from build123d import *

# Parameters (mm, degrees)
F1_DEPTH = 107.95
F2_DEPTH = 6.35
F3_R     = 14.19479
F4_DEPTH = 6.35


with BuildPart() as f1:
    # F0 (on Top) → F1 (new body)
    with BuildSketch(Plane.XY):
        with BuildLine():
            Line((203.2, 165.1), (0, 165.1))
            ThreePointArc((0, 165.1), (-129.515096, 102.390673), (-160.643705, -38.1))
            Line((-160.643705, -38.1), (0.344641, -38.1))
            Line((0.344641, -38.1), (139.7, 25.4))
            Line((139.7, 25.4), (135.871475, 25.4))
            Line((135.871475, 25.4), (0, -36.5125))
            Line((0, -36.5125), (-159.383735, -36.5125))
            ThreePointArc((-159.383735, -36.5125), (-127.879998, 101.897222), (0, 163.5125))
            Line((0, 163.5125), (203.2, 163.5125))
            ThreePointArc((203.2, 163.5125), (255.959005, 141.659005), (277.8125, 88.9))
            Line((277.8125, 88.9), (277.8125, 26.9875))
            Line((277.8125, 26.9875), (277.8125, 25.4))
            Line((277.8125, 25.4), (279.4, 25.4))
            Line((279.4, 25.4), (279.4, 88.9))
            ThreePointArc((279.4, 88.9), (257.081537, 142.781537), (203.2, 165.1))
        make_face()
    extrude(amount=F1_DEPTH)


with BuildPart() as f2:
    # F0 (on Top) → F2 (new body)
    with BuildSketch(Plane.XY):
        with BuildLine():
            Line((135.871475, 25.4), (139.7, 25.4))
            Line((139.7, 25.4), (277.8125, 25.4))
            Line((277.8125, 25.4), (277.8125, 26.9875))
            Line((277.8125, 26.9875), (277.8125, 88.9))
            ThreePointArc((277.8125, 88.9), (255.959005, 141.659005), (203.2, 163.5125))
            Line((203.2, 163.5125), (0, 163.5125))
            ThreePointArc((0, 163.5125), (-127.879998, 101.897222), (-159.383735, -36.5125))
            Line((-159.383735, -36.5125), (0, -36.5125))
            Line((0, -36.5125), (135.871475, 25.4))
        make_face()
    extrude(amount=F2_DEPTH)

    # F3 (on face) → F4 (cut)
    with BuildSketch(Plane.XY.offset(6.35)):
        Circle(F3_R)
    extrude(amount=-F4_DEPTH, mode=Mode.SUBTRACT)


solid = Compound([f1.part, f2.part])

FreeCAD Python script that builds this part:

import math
import FreeCAD as App
import Part
import Sketcher
Q = App.Units.Quantity

doc = App.newDocument("Part")
body = doc.addObject("PartDesign::Body", "Body")

sketch1 = body.newObject("Sketcher::SketchObject", "Sketch")
sketch1.AttachmentSupport = (doc.getObject("XY_Plane"), [""])
sketch1.MapMode = "FlatFace"
sketch1.addGeometry(Part.LineSegment(App.Vector(203.2, 165.1, 0), App.Vector(0, 165.1, 0)), False)
sketch1.addGeometry(Part.ArcOfCircle(Part.Circle(App.Vector(0, 0, 0), App.Vector(0, 0, 1), 165.1), math.radians(90), math.radians(193)), False)
sketch1.addGeometry(Part.LineSegment(App.Vector(-160.6, -38.1, 0), App.Vector(0.3, -38.1, 0)), False)
sketch1.addGeometry(Part.LineSegment(App.Vector(0.3, -38.1, 0), App.Vector(139.7, 25.4, 0)), False)
sketch1.addGeometry(Part.LineSegment(App.Vector(139.7, 25.4, 0), App.Vector(135.9, 25.4, 0)), False)
sketch1.addGeometry(Part.LineSegment(App.Vector(135.9, 25.4, 0), App.Vector(0, -36.5, 0)), False)
sketch1.addGeometry(Part.LineSegment(App.Vector(0, -36.5, 0), App.Vector(-159.4, -36.5, 0)), False)
sketch1.addGeometry(Part.ArcOfCircle(Part.Circle(App.Vector(0, 0, 0), App.Vector(0, 0, 1), 163.5), math.radians(90), math.radians(193)), False)
sketch1.addGeometry(Part.LineSegment(App.Vector(0, 163.5, 0), App.Vector(203.2, 163.5, 0)), False)
sketch1.addGeometry(Part.ArcOfCircle(Part.Circle(App.Vector(203.2, 88.9, 0), App.Vector(0, 0, 1), 74.6), math.radians(0), math.radians(90)), False)
sketch1.addGeometry(Part.LineSegment(App.Vector(277.8, 88.9, 0), App.Vector(277.8, 25.4, 0)), False)
sketch1.addGeometry(Part.LineSegment(App.Vector(277.8, 25.4, 0), App.Vector(279.4, 25.4, 0)), False)
sketch1.addGeometry(Part.LineSegment(App.Vector(279.4, 25.4, 0), App.Vector(279.4, 88.9, 0)), False)
sketch1.addGeometry(Part.ArcOfCircle(Part.Circle(App.Vector(203.2, 88.9, 0), App.Vector(0, 0, 1), 76.2), math.radians(0), math.radians(90)), False)
sketch1.addConstraint(Sketcher.Constraint("Tangent", 0, 2, 1, 1))
sketch1.addConstraint(Sketcher.Constraint("Coincident", 1, 2, 2, 1))
sketch1.addConstraint(Sketcher.Constraint("Coincident", 2, 2, 3, 1))
sketch1.addConstraint(Sketcher.Constraint("Coincident", 3, 2, 4, 1))
sketch1.addConstraint(Sketcher.Constraint("Coincident", 4, 2, 5, 1))
sketch1.addConstraint(Sketcher.Constraint("Coincident", 5, 2, 6, 1))
sketch1.addConstraint(Sketcher.Constraint("Coincident", 6, 2, 7, 2))
sketch1.addConstraint(Sketcher.Constraint("Tangent", 7, 1, 8, 1))
sketch1.addConstraint(Sketcher.Constraint("Tangent", 8, 2, 9, 2))
sketch1.addConstraint(Sketcher.Constraint("Tangent", 9, 1, 10, 1))
sketch1.addConstraint(Sketcher.Constraint("Coincident", 10, 2, 11, 1))
sketch1.addConstraint(Sketcher.Constraint("Coincident", 11, 2, 12, 1))
sketch1.addConstraint(Sketcher.Constraint("Tangent", 12, 2, 13, 1))
sketch1.addConstraint(Sketcher.Constraint("Tangent", 13, 2, 0, 1))
sketch1.addConstraint(Sketcher.Constraint("Horizontal", 0))
sketch1.addConstraint(Sketcher.Constraint("Horizontal", 2))
sketch1.addConstraint(Sketcher.Constraint("Horizontal", 4))
sketch1.addConstraint(Sketcher.Constraint("Horizontal", 6))
sketch1.addConstraint(Sketcher.Constraint("Horizontal", 8))
sketch1.addConstraint(Sketcher.Constraint("Vertical", 10))
sketch1.addConstraint(Sketcher.Constraint("Horizontal", 11))
sketch1.addConstraint(Sketcher.Constraint("Vertical", 12))
sketch1.addConstraint(Sketcher.Constraint("Coincident", 1, 3, -1, 1))
sketch1.addConstraint(Sketcher.Constraint("Coincident", 7, 3, -1, 1))
sketch1.addConstraint(Sketcher.Constraint("Coincident", 13, 3, 9, 3))
sketch1.addConstraint(Sketcher.Constraint("PointOnObject", 5, 2, -2))
sketch1.addConstraint(Sketcher.Constraint("Parallel", 3, 5))
sketch1.addConstraint(Sketcher.Constraint("Horizontal", 4, 2, 10, 2))
sketch1.addConstraint(Sketcher.Constraint("Radius", 13, Q("3 in")))
sketch1.addConstraint(Sketcher.Constraint("Radius", 1, Q("6.5 in")))
sketch1.addConstraint(Sketcher.Constraint("DistanceX", 0, 2, 0, 1, Q("8 in")))
sketch1.addConstraint(Sketcher.Constraint("DistanceY", 10, 2, 10, 1, Q("2.5 in")))
sketch1.addConstraint(Sketcher.Constraint("Radius", 7, Q("6.4375 in")))
sketch1.addConstraint(Sketcher.Constraint("DistanceY", 1, 2, 0, 2, Q("8 in")))
sketch1.addConstraint(Sketcher.Constraint("DistanceX", -1, 1, 3, 2, Q("5.5 in")))
sketch1.addConstraint(Sketcher.Constraint("DistanceY", 5, 2, -1, 1, Q("1.4375 in")))
sketch1.addConstraint(Sketcher.Constraint("Distance", 3, 153.141001))
pad1 = body.newObject("PartDesign::Pad", "Pad")
pad1.Profile = sketch1
pad1.Length = Q("4.25 in")
body2 = doc.addObject("PartDesign::Body", "Body001")

sketch2 = body2.newObject("Sketcher::SketchObject", "Sketch001")
sketch2.AttachmentSupport = (doc.getObject("XY_Plane001"), [""])
sketch2.MapMode = "FlatFace"
sketch2.addGeometry(Part.LineSegment(App.Vector(136, 25, 0), App.Vector(278, 25, 0)), False)
sketch2.addGeometry(Part.LineSegment(App.Vector(278, 25, 0), App.Vector(278, 89, 0)), False)
sketch2.addGeometry(Part.ArcOfCircle(Part.Circle(App.Vector(203, 89, 0), App.Vector(0, 0, 1), 75), math.radians(0), math.radians(90)), False)
sketch2.addGeometry(Part.LineSegment(App.Vector(203, 164, 0), App.Vector(0, 164, 0)), False)
sketch2.addGeometry(Part.ArcOfCircle(Part.Circle(App.Vector(0, 0, 0), App.Vector(0, 0, 1), 164), math.radians(90), math.radians(193)), False)
sketch2.addGeometry(Part.LineSegment(App.Vector(-159, -37, 0), App.Vector(0, -37, 0)), False)
sketch2.addGeometry(Part.LineSegment(App.Vector(0, -37, 0), App.Vector(136, 25, 0)), False)
sketch2.addConstraint(Sketcher.Constraint("Coincident", 0, 2, 1, 1))
sketch2.addConstraint(Sketcher.Constraint("Tangent", 1, 2, 2, 1))
sketch2.addConstraint(Sketcher.Constraint("Tangent", 2, 2, 3, 1))
sketch2.addConstraint(Sketcher.Constraint("Tangent", 3, 2, 4, 1))
sketch2.addConstraint(Sketcher.Constraint("Coincident", 4, 2, 5, 1))
sketch2.addConstraint(Sketcher.Constraint("Coincident", 5, 2, 6, 1))
sketch2.addConstraint(Sketcher.Constraint("Coincident", 6, 2, 0, 1))
sketch2.addConstraint(Sketcher.Constraint("Horizontal", 0))
sketch2.addConstraint(Sketcher.Constraint("Vertical", 1))
sketch2.addConstraint(Sketcher.Constraint("Horizontal", 3))
sketch2.addConstraint(Sketcher.Constraint("Horizontal", 5))
sketch2.addConstraint(Sketcher.Constraint("Coincident", 4, 3, -1, 1))
sketch2.addConstraint(Sketcher.Constraint("PointOnObject", 5, 2, -2))
sketch2.addConstraint(Sketcher.Constraint("DistanceX", 3, 2, 3, 1, Q("8 in")))
sketch2.addConstraint(Sketcher.Constraint("DistanceY", 1, 1, 1, 2, Q("2.5 in")))
sketch2.addConstraint(Sketcher.Constraint("DistanceY", -1, 1, 0, 2, Q("1 in")))
sketch2.addConstraint(Sketcher.Constraint("Radius", 2, Q("2.9375 in")))
sketch2.addConstraint(Sketcher.Constraint("DistanceY", 4, 2, -1, 1, Q("1.4375 in")))
sketch2.addConstraint(Sketcher.Constraint("DistanceX", 0, 1, 0, 2, 141.941025))
pad2 = body2.newObject("PartDesign::Pad", "Pad001")
pad2.Profile = sketch2
pad2.Length = Q("0.25 in")

sketch3 = body2.newObject("Sketcher::SketchObject", "Sketch002")
sketch3.AttachmentSupport = (doc.getObject("XY_Plane001"), [""])
sketch3.MapMode = "FlatFace"
sketch3.AttachmentOffset = App.Placement(App.Vector(0, 0, 0.25 * 25.4), App.Rotation())
sketch3.addGeometry(Part.Circle(App.Vector(0, 0, 0), App.Vector(0, 0, 1), 14), False)
sketch3.addConstraint(Sketcher.Constraint("Coincident", 0, 3, -1, 1))
sketch3.addConstraint(Sketcher.Constraint("Diameter", 0, Q("1.1177 in")))
pocket1 = body2.newObject("PartDesign::Pocket", "Pocket")
pocket1.Profile = sketch3
pocket1.Length = Q("0.25 in")

doc.recompute()
